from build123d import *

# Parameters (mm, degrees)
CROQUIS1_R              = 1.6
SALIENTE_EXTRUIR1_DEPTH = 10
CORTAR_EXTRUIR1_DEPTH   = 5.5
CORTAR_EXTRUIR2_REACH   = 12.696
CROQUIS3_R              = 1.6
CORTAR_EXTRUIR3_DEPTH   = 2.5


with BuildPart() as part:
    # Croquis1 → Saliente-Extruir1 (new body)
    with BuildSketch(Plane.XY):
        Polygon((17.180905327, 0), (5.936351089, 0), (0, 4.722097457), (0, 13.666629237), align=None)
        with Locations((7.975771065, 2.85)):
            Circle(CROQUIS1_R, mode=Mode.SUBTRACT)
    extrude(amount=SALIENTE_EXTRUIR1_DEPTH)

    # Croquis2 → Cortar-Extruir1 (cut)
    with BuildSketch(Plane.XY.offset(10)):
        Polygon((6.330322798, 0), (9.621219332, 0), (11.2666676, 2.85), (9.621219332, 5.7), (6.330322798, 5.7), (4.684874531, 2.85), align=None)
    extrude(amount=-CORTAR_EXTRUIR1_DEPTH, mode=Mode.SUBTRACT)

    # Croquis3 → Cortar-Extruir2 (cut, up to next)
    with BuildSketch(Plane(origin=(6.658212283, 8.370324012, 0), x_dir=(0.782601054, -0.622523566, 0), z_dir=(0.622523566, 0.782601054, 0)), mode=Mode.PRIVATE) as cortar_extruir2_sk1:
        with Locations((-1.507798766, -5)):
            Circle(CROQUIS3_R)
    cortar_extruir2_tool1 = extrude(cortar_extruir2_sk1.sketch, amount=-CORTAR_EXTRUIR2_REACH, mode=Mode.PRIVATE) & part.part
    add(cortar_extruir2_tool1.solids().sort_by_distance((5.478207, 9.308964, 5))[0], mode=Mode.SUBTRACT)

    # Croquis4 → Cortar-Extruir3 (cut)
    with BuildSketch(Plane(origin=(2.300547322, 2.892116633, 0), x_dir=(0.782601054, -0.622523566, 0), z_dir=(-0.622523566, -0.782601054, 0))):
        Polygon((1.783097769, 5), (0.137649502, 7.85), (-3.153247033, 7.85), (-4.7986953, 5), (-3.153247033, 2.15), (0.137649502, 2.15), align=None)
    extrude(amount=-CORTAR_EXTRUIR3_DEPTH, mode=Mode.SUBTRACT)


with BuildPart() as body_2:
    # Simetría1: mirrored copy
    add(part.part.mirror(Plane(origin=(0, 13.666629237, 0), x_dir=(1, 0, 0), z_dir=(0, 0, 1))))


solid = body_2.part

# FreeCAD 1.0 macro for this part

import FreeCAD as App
import Part
import Sketcher
from FreeCAD import Vector
Q = App.Units.Quantity

doc = App.newDocument("Part")
params = doc.addObject("Spreadsheet::Sheet", "Params")
for row, (alias, value) in enumerate([
    ("sketch1_diameter", "3.2 mm"),
    ("pad1_length", "10 mm"),
    ("pocket1_length", "5.5 mm"),
    ("sketch3_diameter", "3.2 mm"),
    ("pocket3_length", "2.5 mm"),
], start=1):
    params.set(f"A{row}", alias)
    params.set(f"B{row}", "=" + value)
    params.setAlias(f"B{row}", alias)

body = doc.addObject("PartDesign::Body", "Body")

# Sketch on XY plane
sketch1 = body.newObject("Sketcher::SketchObject", "Sketch")
sketch1.AttachmentSupport = (doc.getObject("XY_Plane"), [""])
sketch1.MapMode = "FlatFace"
sketch1.addGeometry([
    Part.LineSegment(Vector(5.9, 0, 0), Vector(17.2, 0, 0)),  # 0
    Part.LineSegment(Vector(17.2, 0, 0), Vector(0, 13.7, 0)),  # 1
    Part.LineSegment(Vector(0, 13.7, 0), Vector(0, 4.7, 0)),  # 2
    Part.LineSegment(Vector(0, 4.7, 0), Vector(5.9, 0, 0)),  # 3
    Part.Circle(Vector(8, 2.9, 0), Vector(0, 0, 1), 1.6),  # 4
], False)
sketch1.addConstraint([
    Sketcher.Constraint("Coincident", 0, 2, 1, 1),
    Sketcher.Constraint("Coincident", 1, 2, 2, 1),
    Sketcher.Constraint("Coincident", 2, 2, 3, 1),
    Sketcher.Constraint("Coincident", 3, 2, 0, 1),
    Sketcher.Constraint("Horizontal", 0),
    Sketcher.Constraint("Vertical", 2),
    Sketcher.Constraint("PointOnObject", 0, 2, -1),
    Sketcher.Constraint("PointOnObject", 1, 2, -2),
    Sketcher.Constraint("Parallel", 1, 3),
    Sketcher.Constraint("Diameter", 4, Q("3.2 mm")),
    Sketcher.Constraint("DistanceY", -1, 1, 4, 3, Q("2.85 mm")),
    Sketcher.Constraint("DistanceY", 2, 2, 2, 1, Q("8.944532 mm")),
    Sketcher.Constraint("Distance", 3, Q("7.585412 mm")),
    Sketcher.Constraint("DistanceX", 0, 1, 0, 2, Q("11.244554 mm")),
    Sketcher.Constraint("DistanceX", -1, 1, 4, 3, Q("7.975771 mm")),
])
sketch1.setExpression("Constraints[9]", "Params.sketch1_diameter")
pad1 = body.newObject("PartDesign::Pad", "Pad")
pad1.Profile = sketch1
pad1.setExpression("Length", "Params.pad1_length")

# Sketch on XY plane
sketch2 = body.newObject("Sketcher::SketchObject", "Sketch001")
sketch2.AttachmentSupport = (doc.getObject("XY_Plane"), [""])
sketch2.MapMode = "FlatFace"
sketch2.AttachmentOffset = App.Placement(Vector(0, 0, 10), App.Rotation())
sketch2.addGeometry([
    Part.LineSegment(Vector(6.3, 0, 0), Vector(9.6, 0, 0)),  # 0
    Part.LineSegment(Vector(9.6, 0, 0), Vector(11.3, 2.9, 0)),  # 1
    Part.LineSegment(Vector(11.3, 2.9, 0), Vector(9.6, 5.7, 0)),  # 2
    Part.LineSegment(Vector(9.6, 5.7, 0), Vector(6.3, 5.7, 0)),  # 3
    Part.LineSegment(Vector(6.3, 5.7, 0), Vector(4.7, 2.9, 0)),  # 4
    Part.LineSegment(Vector(4.7, 2.9, 0), Vector(6.3, 0, 0)),  # 5
], False)
sketch2.addConstraint([
    Sketcher.Constraint("Coincident", 0, 2, 1, 1),
    Sketcher.Constraint("Coincident", 1, 2, 2, 1),
    Sketcher.Constraint("Coincident", 2, 2, 3, 1),
    Sketcher.Constraint("Coincident", 3, 2, 4, 1),
    Sketcher.Constraint("Coincident", 4, 2, 5, 1),
    Sketcher.Constraint("Coincident", 5, 2, 0, 1),
    Sketcher.Constraint("Horizontal", 0),
    Sketcher.Constraint("Horizontal", 3),
    Sketcher.Constraint("PointOnObject", 0, 2, -1),
    Sketcher.Constraint("Parallel", 1, 4),
    Sketcher.Constraint("Parallel", 2, 5),
    Sketcher.Constraint("Horizontal", 1, 2, 4, 2),
    Sketcher.Constraint("Vertical", 0, 2, 2, 2),
    Sketcher.Constraint("Vertical", 3, 2, 5, 2),
    Sketcher.Constraint("Angle", 1, Q("60 deg")),
    Sketcher.Constraint("DistanceY", -1, 1, 2, 2, Q("5.7 mm")),
    Sketcher.Constraint("DistanceX", 0, 1, 0, 2, Q("3.290897 mm")),
    Sketcher.Constraint("DistanceX", -1, 1, 0, 2, Q("9.621219 mm")),
])
pocket1 = body.newObject("PartDesign::Pocket", "Pocket")
pocket1.Profile = sketch2
pocket1.setExpression("Length", "Params.pocket1_length")

# Sketch on an angled plane
sketch3 = body.newObject("Sketcher::SketchObject", "Sketch002")
sketch3.Placement = App.Placement(Vector(6.658212, 8.370324, 0), App.Rotation(Vector(0.782601054, -0.622523566, 0), Vector(0, 0, -1), Vector(0.622523566, 0.782601054, 0), "ZXY"))
sketch3.addGeometry(Part.Circle(Vector(-1.5, -5, 0), Vector(0, 0, 1), 1.6), False)
sketch3.addConstraint([
    Sketcher.Constraint("Diameter", 0, Q("3.2 mm")),
    Sketcher.Constraint("DistanceY", 0, 3, -1, 1, Q("5 mm")),
    Sketcher.Constraint("DistanceX", 0, 3, -1, 1, Q("1.507799 mm")),
])
sketch3.setExpression("Constraints[0]", "Params.sketch3_diameter")
pocket2 = body.newObject("PartDesign::Pocket", "Pocket001")
pocket2.Profile = sketch3
pocket2.Type = "UpToFirst"

# Sketch on an angled plane
sketch4 = body.newObject("Sketcher::SketchObject", "Sketch003")
sketch4.Placement = App.Placement(Vector(2.300547, 2.892117, 0), App.Rotation(Vector(0.782601054, -0.622523566, 0), Vector(0, 0, 1), Vector(-0.622523566, -0.782601054, 0), "ZXY"))
sketch4.addGeometry([
    Part.LineSegment(Vector(1.8, 5, 0), Vector(0.1, 7.8, 0)),  # 0
    Part.LineSegment(Vector(0.1, 7.8, 0), Vector(-3.2, 7.8, 0)),  # 1
    Part.LineSegment(Vector(-3.2, 7.8, 0), Vector(-4.8, 5, 0)),  # 2
    Part.LineSegment(Vector(-4.8, 5, 0), Vector(-3.2, 2.1, 0)),  # 3
    Part.LineSegment(Vector(-3.2, 2.1, 0), Vector(0.1, 2.1, 0)),  # 4
    Part.LineSegment(Vector(0.1, 2.1, 0), Vector(1.8, 5, 0)),  # 5
], False)
sketch4.addConstraint([
    Sketcher.Constraint("Coincident", 0, 2, 1, 1),
    Sketcher.Constraint("Coincident", 1, 2, 2, 1),
    Sketcher.Constraint("Coincident", 2, 2, 3, 1),
    Sketcher.Constraint("Coincident", 3, 2, 4, 1),
    Sketcher.Constraint("Coincident", 4, 2, 5, 1),
    Sketcher.Constraint("Coincident", 5, 2, 0, 1),
    Sketcher.Constraint("Horizontal", 1),
    Sketcher.Constraint("Horizontal", 4),
    Sketcher.Constraint("Parallel", 0, 3),
    Sketcher.Constraint("Parallel", 2, 5),
    Sketcher.Constraint("Horizontal", 2, 2, 5, 2),
    Sketcher.Constraint("Vertical", 1, 2, 3, 2),
    Sketcher.Constraint("Vertical", 0, 2, 4, 2),
    Sketcher.Constraint("Angle", 0, Q("120 deg")),
    Sketcher.Constraint("DistanceY", -1, 1, 2, 2, Q("5 mm")),
    Sketcher.Constraint("DistanceY", 3, 2, 1, 2, Q("5.7 mm")),
    Sketcher.Constraint("DistanceX", 1, 2, 1, 1, Q("3.290897 mm")),
    Sketcher.Constraint("DistanceX", -1, 1, 0, 2, Q("0.13765 mm")),
])
pocket3 = body.newObject("PartDesign::Pocket", "Pocket002")
pocket3.Profile = sketch4
pocket3.setExpression("Length", "Params.pocket3_length")
body2 = doc.addObject("PartDesign::Body", "Body001")
doc.recompute()

mirroring = doc.addObject("Part::Mirroring", "Mirroring")
mirroring.Source = body
mirroring.Base = Vector(0, 13.666629, 0)
mirroring.Normal = Vector(0, 0, 1)
body2.BaseFeature = mirroring
doc.recompute()
body.Visibility = False
mirroring.Visibility = False

doc.recompute()
